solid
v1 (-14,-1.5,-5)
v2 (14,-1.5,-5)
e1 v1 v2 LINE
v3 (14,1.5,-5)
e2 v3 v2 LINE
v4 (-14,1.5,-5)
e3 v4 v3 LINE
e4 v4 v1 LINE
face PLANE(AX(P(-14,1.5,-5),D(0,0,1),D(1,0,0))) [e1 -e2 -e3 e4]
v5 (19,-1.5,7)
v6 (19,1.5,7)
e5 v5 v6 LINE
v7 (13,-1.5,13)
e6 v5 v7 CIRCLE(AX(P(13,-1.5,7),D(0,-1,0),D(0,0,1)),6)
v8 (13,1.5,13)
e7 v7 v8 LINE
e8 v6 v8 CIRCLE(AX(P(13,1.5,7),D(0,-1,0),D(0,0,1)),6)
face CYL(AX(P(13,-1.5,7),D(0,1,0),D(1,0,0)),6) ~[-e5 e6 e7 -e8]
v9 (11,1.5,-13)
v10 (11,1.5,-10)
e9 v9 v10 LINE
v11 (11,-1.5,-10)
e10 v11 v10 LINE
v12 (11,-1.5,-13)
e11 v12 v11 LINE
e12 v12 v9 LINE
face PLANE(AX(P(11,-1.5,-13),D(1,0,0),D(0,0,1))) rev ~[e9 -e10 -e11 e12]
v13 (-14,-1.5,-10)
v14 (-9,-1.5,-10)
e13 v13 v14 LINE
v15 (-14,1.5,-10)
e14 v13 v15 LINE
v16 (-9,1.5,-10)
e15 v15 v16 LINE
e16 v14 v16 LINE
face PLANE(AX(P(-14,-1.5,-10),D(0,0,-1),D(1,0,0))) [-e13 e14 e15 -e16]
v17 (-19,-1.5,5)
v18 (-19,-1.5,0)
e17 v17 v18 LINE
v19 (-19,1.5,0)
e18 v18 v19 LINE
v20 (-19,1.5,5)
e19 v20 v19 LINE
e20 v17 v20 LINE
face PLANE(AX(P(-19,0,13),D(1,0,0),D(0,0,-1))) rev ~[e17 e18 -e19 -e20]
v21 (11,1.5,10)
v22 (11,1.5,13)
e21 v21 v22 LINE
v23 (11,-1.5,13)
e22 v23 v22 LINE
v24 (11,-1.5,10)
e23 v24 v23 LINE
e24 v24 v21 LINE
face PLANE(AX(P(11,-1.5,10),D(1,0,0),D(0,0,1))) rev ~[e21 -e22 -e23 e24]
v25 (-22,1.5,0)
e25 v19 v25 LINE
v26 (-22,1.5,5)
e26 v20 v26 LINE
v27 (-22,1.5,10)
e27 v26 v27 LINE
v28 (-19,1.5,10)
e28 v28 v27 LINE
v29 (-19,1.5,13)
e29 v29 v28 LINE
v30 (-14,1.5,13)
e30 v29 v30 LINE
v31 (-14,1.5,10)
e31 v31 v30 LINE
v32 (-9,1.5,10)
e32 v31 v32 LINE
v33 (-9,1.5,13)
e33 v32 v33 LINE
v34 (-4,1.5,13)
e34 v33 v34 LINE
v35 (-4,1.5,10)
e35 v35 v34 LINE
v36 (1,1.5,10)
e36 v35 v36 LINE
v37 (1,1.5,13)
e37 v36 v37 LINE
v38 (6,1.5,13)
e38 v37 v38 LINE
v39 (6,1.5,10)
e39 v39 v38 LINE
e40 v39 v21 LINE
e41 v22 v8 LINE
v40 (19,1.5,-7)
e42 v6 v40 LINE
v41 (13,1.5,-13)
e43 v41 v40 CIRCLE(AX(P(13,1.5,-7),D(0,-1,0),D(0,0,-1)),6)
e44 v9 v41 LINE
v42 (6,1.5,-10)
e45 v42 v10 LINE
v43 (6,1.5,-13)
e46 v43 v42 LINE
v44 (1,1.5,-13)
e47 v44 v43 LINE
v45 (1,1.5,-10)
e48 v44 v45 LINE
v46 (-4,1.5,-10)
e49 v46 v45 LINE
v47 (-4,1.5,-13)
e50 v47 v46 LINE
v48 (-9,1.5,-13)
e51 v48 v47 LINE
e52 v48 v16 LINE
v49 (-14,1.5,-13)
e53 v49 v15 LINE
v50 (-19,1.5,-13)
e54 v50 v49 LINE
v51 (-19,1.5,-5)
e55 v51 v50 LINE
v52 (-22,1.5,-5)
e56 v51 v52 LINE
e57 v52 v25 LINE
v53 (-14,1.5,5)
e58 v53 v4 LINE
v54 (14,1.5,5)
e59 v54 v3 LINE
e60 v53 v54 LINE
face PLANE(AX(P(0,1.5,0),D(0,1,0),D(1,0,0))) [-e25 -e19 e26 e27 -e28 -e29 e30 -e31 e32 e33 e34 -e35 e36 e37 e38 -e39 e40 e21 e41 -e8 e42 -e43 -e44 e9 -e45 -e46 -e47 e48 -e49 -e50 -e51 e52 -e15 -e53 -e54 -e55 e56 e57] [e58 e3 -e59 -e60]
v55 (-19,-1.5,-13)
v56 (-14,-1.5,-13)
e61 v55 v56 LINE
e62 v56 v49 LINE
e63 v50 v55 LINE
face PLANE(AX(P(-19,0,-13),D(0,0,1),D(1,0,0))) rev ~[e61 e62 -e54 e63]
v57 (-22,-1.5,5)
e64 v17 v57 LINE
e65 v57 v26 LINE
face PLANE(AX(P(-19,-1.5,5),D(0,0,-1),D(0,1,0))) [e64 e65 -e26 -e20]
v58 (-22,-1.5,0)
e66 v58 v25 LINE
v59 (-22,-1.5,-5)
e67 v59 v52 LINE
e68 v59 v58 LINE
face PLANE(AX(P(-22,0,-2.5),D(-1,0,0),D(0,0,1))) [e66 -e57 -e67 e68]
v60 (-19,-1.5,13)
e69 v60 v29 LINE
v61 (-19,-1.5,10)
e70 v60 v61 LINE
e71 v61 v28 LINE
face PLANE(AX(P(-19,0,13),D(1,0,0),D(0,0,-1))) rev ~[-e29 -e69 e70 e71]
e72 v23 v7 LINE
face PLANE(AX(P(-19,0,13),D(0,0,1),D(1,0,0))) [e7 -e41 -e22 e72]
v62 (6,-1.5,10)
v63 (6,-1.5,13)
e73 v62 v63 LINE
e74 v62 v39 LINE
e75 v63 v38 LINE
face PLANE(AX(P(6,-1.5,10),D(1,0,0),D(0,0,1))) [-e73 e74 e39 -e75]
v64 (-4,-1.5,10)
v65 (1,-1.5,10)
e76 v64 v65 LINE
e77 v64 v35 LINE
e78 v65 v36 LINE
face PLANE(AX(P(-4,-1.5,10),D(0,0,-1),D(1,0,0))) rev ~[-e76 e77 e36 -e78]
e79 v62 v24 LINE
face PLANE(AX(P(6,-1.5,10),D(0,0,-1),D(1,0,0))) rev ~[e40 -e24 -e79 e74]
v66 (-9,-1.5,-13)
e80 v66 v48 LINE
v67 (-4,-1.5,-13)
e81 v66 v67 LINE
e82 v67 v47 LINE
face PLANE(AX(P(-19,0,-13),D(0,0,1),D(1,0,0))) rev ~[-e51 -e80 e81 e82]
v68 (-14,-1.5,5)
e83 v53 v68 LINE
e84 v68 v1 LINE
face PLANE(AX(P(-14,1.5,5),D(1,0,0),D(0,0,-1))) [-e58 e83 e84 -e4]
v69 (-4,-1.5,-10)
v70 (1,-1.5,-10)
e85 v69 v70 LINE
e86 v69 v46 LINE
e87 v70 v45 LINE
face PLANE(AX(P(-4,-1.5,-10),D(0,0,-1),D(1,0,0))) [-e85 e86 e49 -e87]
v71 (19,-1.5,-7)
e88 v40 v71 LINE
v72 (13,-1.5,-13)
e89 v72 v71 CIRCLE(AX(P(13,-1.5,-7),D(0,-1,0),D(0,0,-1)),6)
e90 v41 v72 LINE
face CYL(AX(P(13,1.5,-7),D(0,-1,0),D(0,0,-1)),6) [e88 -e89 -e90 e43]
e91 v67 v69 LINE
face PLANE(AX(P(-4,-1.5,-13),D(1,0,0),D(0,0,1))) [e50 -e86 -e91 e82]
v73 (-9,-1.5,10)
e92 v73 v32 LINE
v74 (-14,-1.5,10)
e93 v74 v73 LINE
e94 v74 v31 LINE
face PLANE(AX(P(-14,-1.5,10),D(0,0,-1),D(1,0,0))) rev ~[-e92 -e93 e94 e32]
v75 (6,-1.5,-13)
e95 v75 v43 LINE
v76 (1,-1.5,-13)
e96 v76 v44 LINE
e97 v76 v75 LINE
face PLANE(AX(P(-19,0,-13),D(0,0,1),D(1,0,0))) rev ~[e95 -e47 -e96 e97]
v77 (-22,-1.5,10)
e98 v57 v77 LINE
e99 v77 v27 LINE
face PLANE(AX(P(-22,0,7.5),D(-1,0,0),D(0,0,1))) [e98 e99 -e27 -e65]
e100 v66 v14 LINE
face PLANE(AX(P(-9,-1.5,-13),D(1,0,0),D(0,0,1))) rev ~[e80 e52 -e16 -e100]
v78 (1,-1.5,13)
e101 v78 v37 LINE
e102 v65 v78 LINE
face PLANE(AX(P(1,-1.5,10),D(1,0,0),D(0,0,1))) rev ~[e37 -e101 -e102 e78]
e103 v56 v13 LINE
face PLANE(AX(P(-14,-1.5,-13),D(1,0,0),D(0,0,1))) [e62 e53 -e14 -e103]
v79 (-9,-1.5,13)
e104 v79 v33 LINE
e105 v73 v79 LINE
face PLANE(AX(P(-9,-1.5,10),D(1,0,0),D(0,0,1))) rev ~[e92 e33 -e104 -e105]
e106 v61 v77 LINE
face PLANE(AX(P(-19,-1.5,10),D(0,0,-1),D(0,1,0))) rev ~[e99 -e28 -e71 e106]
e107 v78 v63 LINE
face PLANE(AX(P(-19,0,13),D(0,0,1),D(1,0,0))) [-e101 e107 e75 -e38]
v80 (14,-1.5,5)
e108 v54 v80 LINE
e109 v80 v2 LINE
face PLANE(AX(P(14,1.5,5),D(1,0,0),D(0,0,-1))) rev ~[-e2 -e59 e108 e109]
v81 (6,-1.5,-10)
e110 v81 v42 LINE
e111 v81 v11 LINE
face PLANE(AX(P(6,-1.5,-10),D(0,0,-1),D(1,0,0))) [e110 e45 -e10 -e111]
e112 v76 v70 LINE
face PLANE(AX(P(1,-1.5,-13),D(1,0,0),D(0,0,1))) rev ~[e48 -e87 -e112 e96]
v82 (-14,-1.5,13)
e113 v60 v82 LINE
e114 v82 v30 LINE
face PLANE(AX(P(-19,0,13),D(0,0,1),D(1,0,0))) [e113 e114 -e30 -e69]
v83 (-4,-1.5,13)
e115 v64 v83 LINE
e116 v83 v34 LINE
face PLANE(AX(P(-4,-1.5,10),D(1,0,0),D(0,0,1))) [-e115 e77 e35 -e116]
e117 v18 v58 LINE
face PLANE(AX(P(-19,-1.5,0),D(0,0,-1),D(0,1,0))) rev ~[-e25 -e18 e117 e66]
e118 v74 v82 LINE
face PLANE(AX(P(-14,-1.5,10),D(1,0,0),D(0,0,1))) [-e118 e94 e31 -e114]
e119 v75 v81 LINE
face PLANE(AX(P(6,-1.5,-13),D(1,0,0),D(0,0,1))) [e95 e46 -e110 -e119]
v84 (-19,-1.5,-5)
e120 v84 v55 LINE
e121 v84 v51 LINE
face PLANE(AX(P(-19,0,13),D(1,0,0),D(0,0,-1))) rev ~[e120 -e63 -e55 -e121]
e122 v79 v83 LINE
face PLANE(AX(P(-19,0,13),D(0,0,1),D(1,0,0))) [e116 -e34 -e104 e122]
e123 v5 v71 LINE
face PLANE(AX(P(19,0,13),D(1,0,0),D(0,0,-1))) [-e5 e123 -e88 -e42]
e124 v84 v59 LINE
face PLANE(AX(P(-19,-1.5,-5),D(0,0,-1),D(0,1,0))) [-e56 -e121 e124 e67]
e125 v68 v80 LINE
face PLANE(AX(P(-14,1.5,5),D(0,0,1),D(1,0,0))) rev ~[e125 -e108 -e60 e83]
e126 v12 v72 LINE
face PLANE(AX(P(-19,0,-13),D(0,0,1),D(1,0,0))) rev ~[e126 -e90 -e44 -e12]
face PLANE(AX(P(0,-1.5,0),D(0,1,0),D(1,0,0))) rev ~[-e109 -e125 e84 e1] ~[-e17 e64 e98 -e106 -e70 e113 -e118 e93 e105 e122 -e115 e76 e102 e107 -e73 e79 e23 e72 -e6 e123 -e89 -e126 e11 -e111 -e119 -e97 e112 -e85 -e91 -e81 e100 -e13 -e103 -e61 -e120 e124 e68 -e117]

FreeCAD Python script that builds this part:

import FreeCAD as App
import Part
import Sketcher

V = App.Vector
Q = App.Units.Quantity


def edges_at(feature, points):
    """Names of the edges that pass closest to the given points."""
    edges = feature.Shape.Edges
    near = lambda p: min(range(len(edges)), key=lambda i: edges[i].distToShape(Part.Vertex(*p))[0])
    return sorted({f"Edge{near(p) + 1}" for p in points})

doc = App.newDocument("Part")
body = doc.addObject("PartDesign::Body", "Body")

# Sketch on XZ plane
sketch1 = body.newObject("Sketcher::SketchObject", "Sketch")
sketch1.AttachmentSupport = (doc.getObject("XZ_Plane"), [""])
sketch1.MapMode = "FlatFace"
sketch1.addGeometry([
    Part.LineSegment(V(-19, -13, 0), V(-19, 13, 0)),
    Part.LineSegment(V(-19, 13, 0), V(19, 13, 0)),
    Part.LineSegment(V(19, 13, 0), V(19, -13, 0)),
    Part.LineSegment(V(19, -13, 0), V(-19, -13, 0)),
], False)
sketch1.addConstraint([
    Sketcher.Constraint("Coincident", 0, 2, 1, 1),
    Sketcher.Constraint("Coincident", 1, 2, 2, 1),
    Sketcher.Constraint("Coincident", 2, 2, 3, 1),
    Sketcher.Constraint("Coincident", 3, 2, 0, 1),
    Sketcher.Constraint("Vertical", 0),
    Sketcher.Constraint("Horizontal", 1),
    Sketcher.Constraint("Vertical", 2),
    Sketcher.Constraint("Horizontal", 3),
    Sketcher.Constraint("Symmetric", 0, 2, 2, 2, -1, 1),
    Sketcher.Constraint("DistanceX", 1, 1, 1, 2, Q("38 mm")),
    Sketcher.Constraint("DistanceY", 0, 1, 0, 2, Q("26 mm")),
])
pad1 = body.newObject("PartDesign::Pad", "Pad")
pad1.Profile = sketch1
pad1.Length = 3
pad1.Midplane = True

# Sketch on YZ plane
sketch2 = body.newObject("Sketcher::SketchObject", "Sketch001")
sketch2.AttachmentSupport = (doc.getObject("YZ_Plane"), [""])
sketch2.MapMode = "FlatFace"
sketch2.AttachmentOffset = App.Placement(V(0, 0, -19), App.Rotation())
sketch2.addGeometry([
    Part.LineSegment(V(1.5, -5, 0), V(-1.5, -5, 0)),  # 0
    Part.LineSegment(V(-1.5, -5, 0), V(-1.5, 0, 0)),  # 1
    Part.LineSegment(V(-1.5, 0, 0), V(1.5, 0, 0)),  # 2
    Part.LineSegment(V(1.5, 0, 0), V(1.5, -5, 0)),  # 3
    Part.LineSegment(V(1.5, 5, 0), V(-1.5, 5, 0)),  # 4
    Part.LineSegment(V(-1.5, 5, 0), V(-1.5, 10, 0)),  # 5
    Part.LineSegment(V(-1.5, 10, 0), V(1.5, 10, 0)),  # 6
    Part.LineSegment(V(1.5, 10, 0), V(1.5, 5, 0)),  # 7
], False)
sketch2.addConstraint([
    Sketcher.Constraint("Coincident", 0, 2, 1, 1),
    Sketcher.Constraint("Coincident", 1, 2, 2, 1),
    Sketcher.Constraint("Coincident", 2, 2, 3, 1),
    Sketcher.Constraint("Coincident", 3, 2, 0, 1),
    Sketcher.Constraint("Coincident", 4, 2, 5, 1),
    Sketcher.Constraint("Coincident", 5, 2, 6, 1),
    Sketcher.Constraint("Coincident", 6, 2, 7, 1),
    Sketcher.Constraint("Coincident", 7, 2, 4, 1),
    Sketcher.Constraint("Horizontal", 0),
    Sketcher.Constraint("Vertical", 1),
    Sketcher.Constraint("Horizontal", 2),
    Sketcher.Constraint("Vertical", 3),
    Sketcher.Constraint("Horizontal", 4),
    Sketcher.Constraint("Vertical", 5),
    Sketcher.Constraint("Horizontal", 6),
    Sketcher.Constraint("Vertical", 7),
    Sketcher.Constraint("Symmetric", 1, 2, 2, 2, -1, 1),
    Sketcher.Constraint("Symmetric", 3, 2, 4, 2, -1, 1),
    Sketcher.Constraint("Vertical", 3, 2, 6, 2),
    Sketcher.Constraint("Equal", 3, 5),
    Sketcher.Constraint("DistanceX", 0, 2, 0, 1, Q("3 mm")),
    Sketcher.Constraint("DistanceY", 1, 1, 1, 2, Q("5 mm")),
])
pad2 = body.newObject("PartDesign::Pad", "Pad001")
pad2.Profile = sketch2
pad2.Length = 3
pad2.Reversed = True

# Sketch on XZ plane
sketch3 = body.newObject("Sketcher::SketchObject", "Sketch002")
sketch3.AttachmentSupport = (doc.getObject("XZ_Plane"), [""])
sketch3.MapMode = "FlatFace"
sketch3.AttachmentOffset = App.Placement(V(0, 0, 1.5), App.Rotation())
sketch3.addGeometry([
    Part.LineSegment(V(-14, -10, 0), V(-14, -13, 0)),  # 0
    Part.LineSegment(V(-14, -13, 0), V(-9, -13, 0)),  # 1
    Part.LineSegment(V(-9, -13, 0), V(-9, -10, 0)),  # 2
    Part.LineSegment(V(-9, -10, 0), V(-14, -10, 0)),  # 3
    Part.LineSegment(V(-14, 13, 0), V(-14, 10, 0)),  # 4
    Part.LineSegment(V(-14, 10, 0), V(-9, 10, 0)),  # 5
    Part.LineSegment(V(-9, 10, 0), V(-9, 13, 0)),  # 6
    Part.LineSegment(V(-9, 13, 0), V(-14, 13, 0)),  # 7
    Part.LineSegment(V(-4, -10, 0), V(-4, -13, 0)),  # 8
    Part.LineSegment(V(-4, -13, 0), V(1, -13, 0)),  # 9
    Part.LineSegment(V(1, -13, 0), V(1, -10, 0)),  # 10
    Part.LineSegment(V(1, -10, 0), V(-4, -10, 0)),  # 11
    Part.LineSegment(V(-4, 13, 0), V(-4, 10, 0)),  # 12
    Part.LineSegment(V(-4, 10, 0), V(1, 10, 0)),  # 13
    Part.LineSegment(V(1, 10, 0), V(1, 13, 0)),  # 14
    Part.LineSegment(V(1, 13, 0), V(-4, 13, 0)),  # 15
    Part.LineSegment(V(6, -10, 0), V(6, -13, 0)),  # 16
    Part.LineSegment(V(6, -13, 0), V(11, -13, 0)),  # 17
    Part.LineSegment(V(11, -13, 0), V(11, -10, 0)),  # 18
    Part.LineSegment(V(11, -10, 0), V(6, -10, 0)),  # 19
    Part.LineSegment(V(6, 13, 0), V(6, 10, 0)),  # 20
    Part.LineSegment(V(6, 10, 0), V(11, 10, 0)),  # 21
    Part.LineSegment(V(11, 10, 0), V(11, 13, 0)),  # 22
    Part.LineSegment(V(11, 13, 0), V(6, 13, 0)),  # 23
], False)
sketch3.addConstraint([
    Sketcher.Constraint("Coincident", 0, 2, 1, 1),
    Sketcher.Constraint("Coincident", 1, 2, 2, 1),
    Sketcher.Constraint("Coincident", 2, 2, 3, 1),
    Sketcher.Constraint("Coincident", 3, 2, 0, 1),
    Sketcher.Constraint("Coincident", 4, 2, 5, 1),
    Sketcher.Constraint("Coincident", 5, 2, 6, 1),
    Sketcher.Constraint("Coincident", 6, 2, 7, 1),
    Sketcher.Constraint("Coincident", 7, 2, 4, 1),
    Sketcher.Constraint("Coincident", 8, 2, 9, 1),
    Sketcher.Constraint("Coincident", 9, 2, 10, 1),
    Sketcher.Constraint("Coincident", 10, 2, 11, 1),
    Sketcher.Constraint("Coincident", 11, 2, 8, 1),
    Sketcher.Constraint("Coincident", 12, 2, 13, 1),
    Sketcher.Constraint("Coincident", 13, 2, 14, 1),
    Sketcher.Constraint("Coincident", 14, 2, 15, 1),
    Sketcher.Constraint("Coincident", 15, 2, 12, 1),
    Sketcher.Constraint("Coincident", 16, 2, 17, 1),
    Sketcher.Constraint("Coincident", 17, 2, 18, 1),
    Sketcher.Constraint("Coincident", 18, 2, 19, 1),
    Sketcher.Constraint("Coincident", 19, 2, 16, 1),
    Sketcher.Constraint("Coincident", 20, 2, 21, 1),
    Sketcher.Constraint("Coincident", 21, 2, 22, 1),
    Sketcher.Constraint("Coincident", 22, 2, 23, 1),
    Sketcher.Constraint("Coincident", 23, 2, 20, 1),
    Sketcher.Constraint("Vertical", 0),
    Sketcher.Constraint("Horizontal", 1),
    Sketcher.Constraint("Vertical", 2),
    Sketcher.Constraint("Horizontal", 3),
    Sketcher.Constraint("Vertical", 4),
    Sketcher.Constraint("Horizontal", 5),
    Sketcher.Constraint("Vertical", 6),
    Sketcher.Constraint("Horizontal", 7),
    Sketcher.Constraint("Vertical", 8),
    Sketcher.Constraint("Horizontal", 9),
    Sketcher.Constraint("Vertical", 10),
    Sketcher.Constraint("Horizontal", 11),
    Sketcher.Constraint("Vertical", 12),
    Sketcher.Constraint("Horizontal", 13),
    Sketcher.Constraint("Vertical", 14),
    Sketcher.Constraint("Horizontal", 15),
    Sketcher.Constraint("Vertical", 16),
    Sketcher.Constraint("Horizontal", 17),
    Sketcher.Constraint("Vertical", 18),
    Sketcher.Constraint("Horizontal", 19),
    Sketcher.Constraint("Vertical", 20),
    Sketcher.Constraint("Horizontal", 21),
    Sketcher.Constraint("Vertical", 22),
    Sketcher.Constraint("Horizontal", 23),
    Sketcher.Constraint("Symmetric", 3, 2, 4, 2, -1),
    Sketcher.Constraint("Symmetric", 1, 2, 6, 2, -1),
    Sketcher.Constraint("Symmetric", 11, 2, 12, 2, -1),
    Sketcher.Constraint("Symmetric", 9, 2, 14, 2, -1),
    Sketcher.Constraint("Symmetric", 19, 2, 20, 2, -1),
    Sketcher.Constraint("Symmetric", 17, 2, 22, 2, -1),
    Sketcher.Constraint("Horizontal", 1, 2, 8, 2),
    Sketcher.Constraint("Horizontal", 3, 2, 10, 2),
    Sketcher.Constraint("Horizontal", 9, 2, 16, 2),
    Sketcher.Constraint("Horizontal", 11, 2, 18, 2),
    Sketcher.Constraint("Equal", 7, 9),
    Sketcher.Constraint("Equal", 15, 17),
    Sketcher.Constraint("DistanceX", 1, 1, 1, 2, Q("5 mm")),
    Sketcher.Constraint("DistanceY", 0, 2, 0, 1, Q("3 mm")),
    Sketcher.Constraint("DistanceX", 0, 2, -1, 1, Q("14 mm")),
    Sketcher.Constraint("DistanceY", 0, 2, -1, 1, Q("13 mm")),
    Sketcher.Constraint("DistanceX", 8, 2, -1, 1, Q("4 mm")),
    Sketcher.Constraint("DistanceX", -1, 1, 16, 2, Q("6 mm")),
])
pocket1 = body.newObject("PartDesign::Pocket", "Pocket")
pocket1.Profile = sketch3
pocket1.Length = 3
doc.recompute()

fillet = body.newObject("PartDesign::Fillet", "Fillet")
fillet.Base = (pocket1, edges_at(pocket1, [(19, 0, 13), (19, 0, -13)]))
fillet.Radius = 6

# Sketch on XZ plane
sketch4 = body.newObject("Sketcher::SketchObject", "Sketch003")
sketch4.AttachmentSupport = (doc.getObject("XZ_Plane"), [""])
sketch4.MapMode = "FlatFace"
sketch4.AttachmentOffset = App.Placement(V(0, 0, -1.5), App.Rotation())
sketch4.addGeometry([
    Part.LineSegment(V(-14, -5, 0), V(-14, 5, 0)),
    Part.LineSegment(V(-14, 5, 0), V(14, 5, 0)),
    Part.LineSegment(V(14, 5, 0), V(14, -5, 0)),
    Part.LineSegment(V(14, -5, 0), V(-14, -5, 0)),
], False)
sketch4.addConstraint([
    Sketcher.Constraint("Coincident", 0, 2, 1, 1),
    Sketcher.Constraint("Coincident", 1, 2, 2, 1),
    Sketcher.Constraint("Coincident", 2, 2, 3, 1),
    Sketcher.Constraint("Coincident", 3, 2, 0, 1),
    Sketcher.Constraint("Vertical", 0),
    Sketcher.Constraint("Horizontal", 1),
    Sketcher.Constraint("Vertical", 2),
    Sketcher.Constraint("Horizontal", 3),
    Sketcher.Constraint("Symmetric", 0, 2, 2, 2, -1, 1),
    Sketcher.Constraint("DistanceX", 1, 1, 1, 2, Q("28 mm")),
    Sketcher.Constraint("DistanceY", 0, 1, 0, 2, Q("10 mm")),
])
pocket2 = body.newObject("PartDesign::Pocket", "Pocket001")
pocket2.Profile = sketch4
pocket2.Length = 3
pocket2.Reversed = True

doc.recompute()
